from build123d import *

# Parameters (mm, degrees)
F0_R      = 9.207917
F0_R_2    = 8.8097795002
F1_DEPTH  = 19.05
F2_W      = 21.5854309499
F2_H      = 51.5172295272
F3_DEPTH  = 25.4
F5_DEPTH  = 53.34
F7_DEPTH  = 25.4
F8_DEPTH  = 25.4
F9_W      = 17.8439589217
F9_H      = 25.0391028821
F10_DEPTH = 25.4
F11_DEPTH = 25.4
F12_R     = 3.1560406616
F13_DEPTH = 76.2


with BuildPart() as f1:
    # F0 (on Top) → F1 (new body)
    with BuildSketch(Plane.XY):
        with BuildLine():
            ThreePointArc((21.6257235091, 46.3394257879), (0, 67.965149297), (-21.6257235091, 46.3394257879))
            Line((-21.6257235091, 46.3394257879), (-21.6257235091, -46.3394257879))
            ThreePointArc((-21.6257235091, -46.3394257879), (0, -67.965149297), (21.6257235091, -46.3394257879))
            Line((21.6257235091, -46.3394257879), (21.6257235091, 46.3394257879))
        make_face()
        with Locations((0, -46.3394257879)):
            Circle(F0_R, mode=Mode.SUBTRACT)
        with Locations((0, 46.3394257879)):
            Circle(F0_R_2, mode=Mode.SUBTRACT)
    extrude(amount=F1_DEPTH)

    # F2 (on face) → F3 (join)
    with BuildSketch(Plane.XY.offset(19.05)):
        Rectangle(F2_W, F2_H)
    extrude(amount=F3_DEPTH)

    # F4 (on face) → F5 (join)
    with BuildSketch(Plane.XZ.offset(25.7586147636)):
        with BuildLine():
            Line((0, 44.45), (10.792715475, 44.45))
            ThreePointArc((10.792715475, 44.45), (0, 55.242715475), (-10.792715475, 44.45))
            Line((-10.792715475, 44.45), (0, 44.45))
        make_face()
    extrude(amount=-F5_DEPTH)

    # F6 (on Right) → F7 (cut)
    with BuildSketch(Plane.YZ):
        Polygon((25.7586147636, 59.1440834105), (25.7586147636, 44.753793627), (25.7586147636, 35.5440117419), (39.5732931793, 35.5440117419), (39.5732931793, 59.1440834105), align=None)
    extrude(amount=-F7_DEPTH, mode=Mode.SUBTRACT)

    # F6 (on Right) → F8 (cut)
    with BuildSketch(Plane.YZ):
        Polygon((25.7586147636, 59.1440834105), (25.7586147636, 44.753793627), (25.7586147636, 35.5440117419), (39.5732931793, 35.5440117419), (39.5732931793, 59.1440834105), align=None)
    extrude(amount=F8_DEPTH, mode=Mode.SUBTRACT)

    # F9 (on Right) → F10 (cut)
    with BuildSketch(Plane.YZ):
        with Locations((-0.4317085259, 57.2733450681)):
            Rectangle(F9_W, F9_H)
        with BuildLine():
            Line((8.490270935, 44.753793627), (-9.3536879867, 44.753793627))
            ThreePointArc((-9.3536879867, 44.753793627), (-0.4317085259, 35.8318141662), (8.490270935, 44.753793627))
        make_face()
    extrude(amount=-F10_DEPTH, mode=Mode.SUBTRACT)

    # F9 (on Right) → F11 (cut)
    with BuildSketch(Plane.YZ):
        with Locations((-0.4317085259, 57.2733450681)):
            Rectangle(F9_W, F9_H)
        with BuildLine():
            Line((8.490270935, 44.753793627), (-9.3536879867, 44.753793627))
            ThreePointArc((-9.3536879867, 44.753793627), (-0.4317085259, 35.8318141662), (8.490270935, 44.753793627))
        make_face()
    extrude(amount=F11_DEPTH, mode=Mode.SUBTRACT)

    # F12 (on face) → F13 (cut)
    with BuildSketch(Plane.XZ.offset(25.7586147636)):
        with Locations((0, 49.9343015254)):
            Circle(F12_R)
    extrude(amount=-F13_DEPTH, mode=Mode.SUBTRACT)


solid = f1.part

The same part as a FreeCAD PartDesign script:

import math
import FreeCAD as App
import Part
import Sketcher
Q = App.Units.Quantity

doc = App.newDocument("Part")
body = doc.addObject("PartDesign::Body", "Body")

# Sketch on XY plane
sketch1 = doc.addObject("Sketcher::SketchObject", "Sketch")
body.addObject(sketch1)
sketch1.AttachmentSupport = (doc.XY_Plane, [""])
sketch1.MapMode = "FlatFace"
sketch1.addGeometry(Part.ArcOfCircle(Part.Circle(App.Vector(0, 46, 0), App.Vector(0, 0, 1), 22), math.radians(0), math.radians(180)), False)
sketch1.addGeometry(Part.LineSegment(App.Vector(-22, 46, 0), App.Vector(-22, -46, 0)), False)
sketch1.addGeometry(Part.ArcOfCircle(Part.Circle(App.Vector(0, -46, 0), App.Vector(0, 0, 1), 22), math.radians(180), math.radians(360)), False)
sketch1.addGeometry(Part.LineSegment(App.Vector(22, -46, 0), App.Vector(22, 46, 0)), False)
sketch1.addGeometry(Part.Circle(App.Vector(0, -46, 0), App.Vector(0, 0, 1), 9), False)
sketch1.addGeometry(Part.Circle(App.Vector(0, 46, 0), App.Vector(0, 0, 1), 9), False)
sketch1.addConstraint(Sketcher.Constraint("Tangent", 0, 2, 1, 1))
sketch1.addConstraint(Sketcher.Constraint("Tangent", 1, 2, 2, 1))
sketch1.addConstraint(Sketcher.Constraint("Tangent", 2, 2, 3, 1))
sketch1.addConstraint(Sketcher.Constraint("Tangent", 3, 2, 0, 1))
sketch1.addConstraint(Sketcher.Constraint("Vertical", 1))
sketch1.addConstraint(Sketcher.Constraint("Vertical", 3))
sketch1.addConstraint(Sketcher.Constraint("Coincident", 4, 3, 2, 3))
sketch1.addConstraint(Sketcher.Constraint("Coincident", 5, 3, 0, 3))
sketch1.addConstraint(Sketcher.Constraint("Symmetric", 0, 3, 2, 3, -1, 1))
sketch1.addConstraint(Sketcher.Constraint("Diameter", 5, 17.619559))
sketch1.addConstraint(Sketcher.Constraint("Diameter", 4, 18.415834))
sketch1.addConstraint(Sketcher.Constraint("Radius", 0, 21.625724))
sketch1.addConstraint(Sketcher.Constraint("DistanceY", 1, 2, 1, 1, 92.678852))
pad1 = doc.addObject("PartDesign::Pad", "Pad")
body.addObject(pad1)
pad1.Profile = sketch1
pad1.Length = Q("0.75 in")

# Sketch on XY plane
sketch2 = doc.addObject("Sketcher::SketchObject", "Sketch001")
body.addObject(sketch2)
sketch2.AttachmentSupport = (doc.XY_Plane, [""])
sketch2.MapMode = "FlatFace"
sketch2.AttachmentOffset = App.Placement(App.Vector(0, 0, 0.75 * 25.4), App.Rotation())
sketch2.addGeometry(Part.LineSegment(App.Vector(-11, 26, 0), App.Vector(-11, -26, 0)), False)
sketch2.addGeometry(Part.LineSegment(App.Vector(-11, -26, 0), App.Vector(11, -26, 0)), False)
sketch2.addGeometry(Part.LineSegment(App.Vector(11, -26, 0), App.Vector(11, 26, 0)), False)
sketch2.addGeometry(Part.LineSegment(App.Vector(11, 26, 0), App.Vector(-11, 26, 0)), False)
sketch2.addConstraint(Sketcher.Constraint("Coincident", 0, 2, 1, 1))
sketch2.addConstraint(Sketcher.Constraint("Coincident", 1, 2, 2, 1))
sketch2.addConstraint(Sketcher.Constraint("Coincident", 2, 2, 3, 1))
sketch2.addConstraint(Sketcher.Constraint("Coincident", 3, 2, 0, 1))
sketch2.addConstraint(Sketcher.Constraint("Vertical", 0))
sketch2.addConstraint(Sketcher.Constraint("Horizontal", 1))
sketch2.addConstraint(Sketcher.Constraint("Vertical", 2))
sketch2.addConstraint(Sketcher.Constraint("Horizontal", 3))
sketch2.addConstraint(Sketcher.Constraint("Symmetric", 0, 2, 2, 2, -1, 1))
sketch2.addConstraint(Sketcher.Constraint("DistanceX", 1, 1, 1, 2, 21.585431))
sketch2.addConstraint(Sketcher.Constraint("DistanceY", 0, 2, 0, 1, 51.51723))
pad2 = doc.addObject("PartDesign::Pad", "Pad001")
body.addObject(pad2)
pad2.Profile = sketch2
pad2.Length = Q("1 in")

# Sketch on XZ plane
sketch3 = doc.addObject("Sketcher::SketchObject", "Sketch002")
body.addObject(sketch3)
sketch3.AttachmentSupport = (doc.XZ_Plane, [""])
sketch3.MapMode = "FlatFace"
sketch3.AttachmentOffset = App.Placement(App.Vector(0, 0, 25.758615), App.Rotation())
sketch3.addGeometry(Part.ArcOfCircle(Part.Circle(App.Vector(0, 44, 0), App.Vector(0, 0, 1), 11), math.radians(0), math.radians(180)), False)
sketch3.addGeometry(Part.LineSegment(App.Vector(-11, 44, 0), App.Vector(11, 44, 0)), False)
sketch3.addConstraint(Sketcher.Constraint("Coincident", 0, 1, 1, 2))
sketch3.addConstraint(Sketcher.Constraint("Coincident", 1, 1, 0, 2))
sketch3.addConstraint(Sketcher.Constraint("Horizontal", 1))
sketch3.addConstraint(Sketcher.Constraint("PointOnObject", 0, 3, -2))
sketch3.addConstraint(Sketcher.Constraint("DistanceY", -1, 1, 0, 3, Q("1.75 in")))
sketch3.addConstraint(Sketcher.Constraint("DistanceY", -1, 1, 0, 1, Q("1.75 in")))
sketch3.addConstraint(Sketcher.Constraint("Radius", 0, 10.792715))
pad3 = doc.addObject("PartDesign::Pad", "Pad002")
body.addObject(pad3)
pad3.Profile = sketch3
pad3.Length = Q("2.1 in")
pad3.Reversed = True

# Sketch on YZ plane
sketch4 = doc.addObject("Sketcher::SketchObject", "Sketch003")
body.addObject(sketch4)
sketch4.AttachmentSupport = (doc.YZ_Plane, [""])
sketch4.MapMode = "FlatFace"
sketch4.addGeometry(Part.LineSegment(App.Vector(26, 59, 0), App.Vector(26, 36, 0)), False)
sketch4.addGeometry(Part.LineSegment(App.Vector(26, 36, 0), App.Vector(40, 36, 0)), False)
sketch4.addGeometry(Part.LineSegment(App.Vector(40, 36, 0), App.Vector(40, 59, 0)), False)
sketch4.addGeometry(Part.LineSegment(App.Vector(40, 59, 0), App.Vector(26, 59, 0)), False)
sketch4.addConstraint(Sketcher.Constraint("Coincident", 0, 2, 1, 1))
sketch4.addConstraint(Sketcher.Constraint("Coincident", 1, 2, 2, 1))
sketch4.addConstraint(Sketcher.Constraint("Coincident", 2, 2, 3, 1))
sketch4.addConstraint(Sketcher.Constraint("Coincident", 3, 2, 0, 1))
sketch4.addConstraint(Sketcher.Constraint("Vertical", 0))
sketch4.addConstraint(Sketcher.Constraint("Horizontal", 1))
sketch4.addConstraint(Sketcher.Constraint("Vertical", 2))
sketch4.addConstraint(Sketcher.Constraint("Horizontal", 3))
sketch4.addConstraint(Sketcher.Constraint("DistanceX", 1, 1, 1, 2, 13.814678))
sketch4.addConstraint(Sketcher.Constraint("DistanceY", 0, 2, 0, 1, 23.600072))
sketch4.addConstraint(Sketcher.Constraint("DistanceY", -1, 1, 0, 2, 35.544012))
sketch4.addConstraint(Sketcher.Constraint("DistanceX", -1, 1, 0, 2, 25.758615))
pocket1 = doc.addObject("PartDesign::Pocket", "Pocket")
body.addObject(pocket1)
pocket1.Profile = sketch4
pocket1.Length = Q("1 in")

# Sketch on YZ plane
sketch5 = doc.addObject("Sketcher::SketchObject", "Sketch004")
body.addObject(sketch5)
sketch5.AttachmentSupport = (doc.YZ_Plane, [""])
sketch5.MapMode = "FlatFace"
sketch5.addGeometry(Part.LineSegment(App.Vector(26, 59, 0), App.Vector(26, 36, 0)), False)
sketch5.addGeometry(Part.LineSegment(App.Vector(26, 36, 0), App.Vector(40, 36, 0)), False)
sketch5.addGeometry(Part.LineSegment(App.Vector(40, 36, 0), App.Vector(40, 59, 0)), False)
sketch5.addGeometry(Part.LineSegment(App.Vector(40, 59, 0), App.Vector(26, 59, 0)), False)
sketch5.addConstraint(Sketcher.Constraint("Coincident", 0, 2, 1, 1))
sketch5.addConstraint(Sketcher.Constraint("Coincident", 1, 2, 2, 1))
sketch5.addConstraint(Sketcher.Constraint("Coincident", 2, 2, 3, 1))
sketch5.addConstraint(Sketcher.Constraint("Coincident", 3, 2, 0, 1))
sketch5.addConstraint(Sketcher.Constraint("Vertical", 0))
sketch5.addConstraint(Sketcher.Constraint("Horizontal", 1))
sketch5.addConstraint(Sketcher.Constraint("Vertical", 2))
sketch5.addConstraint(Sketcher.Constraint("Horizontal", 3))
sketch5.addConstraint(Sketcher.Constraint("DistanceX", 1, 1, 1, 2, 13.814678))
sketch5.addConstraint(Sketcher.Constraint("DistanceY", 0, 2, 0, 1, 23.600072))
sketch5.addConstraint(Sketcher.Constraint("DistanceY", -1, 1, 0, 2, 35.544012))
sketch5.addConstraint(Sketcher.Constraint("DistanceX", -1, 1, 0, 2, 25.758615))
pocket2 = doc.addObject("PartDesign::Pocket", "Pocket001")
body.addObject(pocket2)
pocket2.Profile = sketch5
pocket2.Length = Q("1 in")
pocket2.Reversed = True

# Sketch on YZ plane
sketch6 = doc.addObject("Sketcher::SketchObject", "Sketch005")
body.addObject(sketch6)
sketch6.AttachmentSupport = (doc.YZ_Plane, [""])
sketch6.MapMode = "FlatFace"
sketch6.addGeometry(Part.LineSegment(App.Vector(-9, 70, 0), App.Vector(-9, 45, 0)), False)
sketch6.addGeometry(Part.ArcOfCircle(Part.Circle(App.Vector(0, 45, 0), App.Vector(0, 0, 1), 9), math.radians(180), math.radians(360)), False)
sketch6.addGeometry(Part.LineSegment(App.Vector(8, 45, 0), App.Vector(8, 70, 0)), False)
sketch6.addGeometry(Part.LineSegment(App.Vector(8, 70, 0), App.Vector(-9, 70, 0)), False)
sketch6.addConstraint(Sketcher.Constraint("Tangent", 0, 2, 1, 1))
sketch6.addConstraint(Sketcher.Constraint("Tangent", 1, 2, 2, 1))
sketch6.addConstraint(Sketcher.Constraint("Coincident", 2, 2, 3, 1))
sketch6.addConstraint(Sketcher.Constraint("Coincident", 3, 2, 0, 1))
sketch6.addConstraint(Sketcher.Constraint("Vertical", 0))
sketch6.addConstraint(Sketcher.Constraint("Vertical", 2))
sketch6.addConstraint(Sketcher.Constraint("Horizontal", 3))
sketch6.addConstraint(Sketcher.Constraint("Radius", 1, 8.921979))
sketch6.addConstraint(Sketcher.Constraint("DistanceY", 0, 2, 0, 1, 25.039103))
sketch6.addConstraint(Sketcher.Constraint("DistanceX", 1, 3, -1, 1, 0.431709))
sketch6.addConstraint(Sketcher.Constraint("DistanceY", -1, 1, 1, 3, 44.753794))
pocket3 = doc.addObject("PartDesign::Pocket", "Pocket002")
body.addObject(pocket3)
pocket3.Profile = sketch6
pocket3.Length = Q("1 in")

# Sketch on YZ plane
sketch7 = doc.addObject("Sketcher::SketchObject", "Sketch006")
body.addObject(sketch7)
sketch7.AttachmentSupport = (doc.YZ_Plane, [""])
sketch7.MapMode = "FlatFace"
sketch7.addGeometry(Part.LineSegment(App.Vector(-9, 70, 0), App.Vector(-9, 45, 0)), False)
sketch7.addGeometry(Part.ArcOfCircle(Part.Circle(App.Vector(0, 45, 0), App.Vector(0, 0, 1), 9), math.radians(180), math.radians(360)), False)
sketch7.addGeometry(Part.LineSegment(App.Vector(8, 45, 0), App.Vector(8, 70, 0)), False)
sketch7.addGeometry(Part.LineSegment(App.Vector(8, 70, 0), App.Vector(-9, 70, 0)), False)
sketch7.addConstraint(Sketcher.Constraint("Tangent", 0, 2, 1, 1))
sketch7.addConstraint(Sketcher.Constraint("Tangent", 1, 2, 2, 1))
sketch7.addConstraint(Sketcher.Constraint("Coincident", 2, 2, 3, 1))
sketch7.addConstraint(Sketcher.Constraint("Coincident", 3, 2, 0, 1))
sketch7.addConstraint(Sketcher.Constraint("Vertical", 0))
sketch7.addConstraint(Sketcher.Constraint("Vertical", 2))
sketch7.addConstraint(Sketcher.Constraint("Horizontal", 3))
sketch7.addConstraint(Sketcher.Constraint("Radius", 1, 8.921979))
sketch7.addConstraint(Sketcher.Constraint("DistanceY", 0, 2, 0, 1, 25.039103))
sketch7.addConstraint(Sketcher.Constraint("DistanceX", 1, 3, -1, 1, 0.431709))
sketch7.addConstraint(Sketcher.Constraint("DistanceY", -1, 1, 1, 3, 44.753794))
pocket4 = doc.addObject("PartDesign::Pocket", "Pocket003")
body.addObject(pocket4)
pocket4.Profile = sketch7
pocket4.Length = Q("1 in")
pocket4.Reversed = True

# Sketch on XZ plane
sketch8 = doc.addObject("Sketcher::SketchObject", "Sketch007")
body.addObject(sketch8)
sketch8.AttachmentSupport = (doc.XZ_Plane, [""])
sketch8.MapMode = "FlatFace"
sketch8.AttachmentOffset = App.Placement(App.Vector(0, 0, 25.758615), App.Rotation())
sketch8.addGeometry(Part.Circle(App.Vector(0, 49.9, 0), App.Vector(0, 0, 1), 3.2), False)
sketch8.addConstraint(Sketcher.Constraint("PointOnObject", 0, 3, -2))
sketch8.addConstraint(Sketcher.Constraint("Diameter", 0, 6.312081))
sketch8.addConstraint(Sketcher.Constraint("DistanceY", -1, 1, 0, 3, 49.934302))
pocket5 = doc.addObject("PartDesign::Pocket", "Pocket004")
body.addObject(pocket5)
pocket5.Profile = sketch8
pocket5.Length = Q("3 in")

doc.recompute()
